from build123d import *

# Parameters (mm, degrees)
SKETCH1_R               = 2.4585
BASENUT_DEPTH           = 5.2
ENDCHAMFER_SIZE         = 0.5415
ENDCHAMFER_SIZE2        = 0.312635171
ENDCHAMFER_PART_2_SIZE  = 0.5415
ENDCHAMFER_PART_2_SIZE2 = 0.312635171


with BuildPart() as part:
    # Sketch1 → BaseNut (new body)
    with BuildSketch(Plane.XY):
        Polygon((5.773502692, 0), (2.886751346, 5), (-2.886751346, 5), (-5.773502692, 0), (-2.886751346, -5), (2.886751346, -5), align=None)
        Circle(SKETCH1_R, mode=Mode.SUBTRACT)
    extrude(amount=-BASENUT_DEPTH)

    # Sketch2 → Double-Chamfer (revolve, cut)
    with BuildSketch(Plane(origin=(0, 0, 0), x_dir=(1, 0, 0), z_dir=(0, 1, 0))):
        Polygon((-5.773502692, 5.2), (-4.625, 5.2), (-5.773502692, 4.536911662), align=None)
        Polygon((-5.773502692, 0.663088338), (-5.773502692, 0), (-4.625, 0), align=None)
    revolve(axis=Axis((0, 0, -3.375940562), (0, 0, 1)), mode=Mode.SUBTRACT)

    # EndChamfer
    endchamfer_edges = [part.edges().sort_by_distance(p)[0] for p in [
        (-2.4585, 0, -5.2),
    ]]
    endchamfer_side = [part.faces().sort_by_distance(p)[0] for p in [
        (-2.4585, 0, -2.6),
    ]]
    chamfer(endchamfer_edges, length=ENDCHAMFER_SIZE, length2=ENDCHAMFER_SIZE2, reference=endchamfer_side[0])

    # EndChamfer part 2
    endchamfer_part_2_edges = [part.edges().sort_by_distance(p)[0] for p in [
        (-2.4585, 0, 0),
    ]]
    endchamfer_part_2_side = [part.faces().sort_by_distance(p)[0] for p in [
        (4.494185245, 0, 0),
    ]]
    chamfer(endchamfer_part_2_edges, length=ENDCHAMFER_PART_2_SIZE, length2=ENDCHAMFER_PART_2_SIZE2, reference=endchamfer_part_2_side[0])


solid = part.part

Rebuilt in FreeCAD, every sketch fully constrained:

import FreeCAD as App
import Part
import Sketcher
from FreeCAD import Vector
Q = App.Units.Quantity


def edges_at(feature, points):
    """Names of the edges that pass closest to the given points."""
    edges = feature.Shape.Edges
    near = lambda p: min(range(len(edges)), key=lambda i: edges[i].distToShape(Part.Vertex(*p))[0])
    return sorted({f"Edge{near(p) + 1}" for p in points})

doc = App.newDocument("Part")
body = doc.addObject("PartDesign::Body", "Body")

# Sketch on XY plane
sketch1 = doc.addObject("Sketcher::SketchObject", "Sketch")
body.addObject(sketch1)
sketch1.AttachmentSupport = (doc.XY_Plane, [""])
sketch1.MapMode = "FlatFace"
sketch1.addGeometry(Part.LineSegment(Vector(5.8, 0, 0), Vector(2.9, 5, 0)), False)
sketch1.addGeometry(Part.LineSegment(Vector(2.9, 5, 0), Vector(-2.9, 5, 0)), False)
sketch1.addGeometry(Part.LineSegment(Vector(-2.9, 5, 0), Vector(-5.8, 0, 0)), False)
sketch1.addGeometry(Part.LineSegment(Vector(-5.8, 0, 0), Vector(-2.9, -5, 0)), False)
sketch1.addGeometry(Part.LineSegment(Vector(-2.9, -5, 0), Vector(2.9, -5, 0)), False)
sketch1.addGeometry(Part.LineSegment(Vector(2.9, -5, 0), Vector(5.8, 0, 0)), False)
sketch1.addGeometry(Part.Circle(Vector(0, 0, 0), Vector(0, 0, 1), 2.5), False)
sketch1.addConstraint(Sketcher.Constraint("Coincident", 0, 2, 1, 1))
sketch1.addConstraint(Sketcher.Constraint("Coincident", 1, 2, 2, 1))
sketch1.addConstraint(Sketcher.Constraint("Coincident", 2, 2, 3, 1))
sketch1.addConstraint(Sketcher.Constraint("Coincident", 3, 2, 4, 1))
sketch1.addConstraint(Sketcher.Constraint("Coincident", 4, 2, 5, 1))
sketch1.addConstraint(Sketcher.Constraint("Coincident", 5, 2, 0, 1))
sketch1.addConstraint(Sketcher.Constraint("Horizontal", 1))
sketch1.addConstraint(Sketcher.Constraint("Horizontal", 4))
sketch1.addConstraint(Sketcher.Constraint("Coincident", 6, 3, -1, 1))
sketch1.addConstraint(Sketcher.Constraint("Symmetric", 0, 2, 3, 2, -1, 1))
sketch1.addConstraint(Sketcher.Constraint("Symmetric", 2, 2, 5, 2, -1, 1))
sketch1.addConstraint(Sketcher.Constraint("PointOnObject", 2, 2, -1))
sketch1.addConstraint(Sketcher.Constraint("Parallel", 2, 5))
sketch1.addConstraint(Sketcher.Constraint("Vertical", 1, 2, 3, 2))
sketch1.addConstraint(Sketcher.Constraint("Angle", 0, Q("120 deg")))
sketch1.addConstraint(Sketcher.Constraint("Diameter", 6, Q("4.917 mm")))
sketch1.addConstraint(Sketcher.Constraint("DistanceY", -1, 1, 0, 2, Q("5 mm")))
sketch1.addConstraint(Sketcher.Constraint("DistanceX", 1, 2, 1, 1, Q("5.773503 mm")))
pad1 = doc.addObject("PartDesign::Pad", "Pad")
body.addObject(pad1)
pad1.Profile = sketch1
pad1.Length = 5.2
pad1.Reversed = True

# Sketch on XZ plane
sketch2 = doc.addObject("Sketcher::SketchObject", "Sketch001")
body.addObject(sketch2)
sketch2.AttachmentSupport = (doc.XZ_Plane, [""])
sketch2.MapMode = "FlatFace"
sketch2.addGeometry(Part.LineSegment(Vector(-4.6, -5.2, 0), Vector(-5.8, -5.2, 0)), False)
sketch2.addGeometry(Part.LineSegment(Vector(-5.8, -5.2, 0), Vector(-5.8, -4.5, 0)), False)
sketch2.addGeometry(Part.LineSegment(Vector(-5.8, -4.5, 0), Vector(-4.6, -5.2, 0)), False)
sketch2.addGeometry(Part.LineSegment(Vector(-5.8, -0.7, 0), Vector(-5.8, 0, 0)), False)
sketch2.addGeometry(Part.LineSegment(Vector(-5.8, 0, 0), Vector(-4.6, 0, 0)), False)
sketch2.addGeometry(Part.LineSegment(Vector(-4.6, 0, 0), Vector(-5.8, -0.7, 0)), False)
sketch2.addConstraint(Sketcher.Constraint("Coincident", 0, 2, 1, 1))
sketch2.addConstraint(Sketcher.Constraint("Coincident", 1, 2, 2, 1))
sketch2.addConstraint(Sketcher.Constraint("Coincident", 2, 2, 0, 1))
sketch2.addConstraint(Sketcher.Constraint("Coincident", 3, 2, 4, 1))
sketch2.addConstraint(Sketcher.Constraint("Coincident", 4, 2, 5, 1))
sketch2.addConstraint(Sketcher.Constraint("Coincident", 5, 2, 3, 1))
sketch2.addConstraint(Sketcher.Constraint("Horizontal", 0))
sketch2.addConstraint(Sketcher.Constraint("Vertical", 1))
sketch2.addConstraint(Sketcher.Constraint("Vertical", 3))
sketch2.addConstraint(Sketcher.Constraint("Horizontal", 4))
sketch2.addConstraint(Sketcher.Constraint("PointOnObject", 3, 2, -1))
sketch2.addConstraint(Sketcher.Constraint("Vertical", 1, 2, 3, 2))
sketch2.addConstraint(Sketcher.Constraint("Vertical", 2, 2, 4, 2))
sketch2.addConstraint(Sketcher.Constraint("Equal", 1, 3))
sketch2.addConstraint(Sketcher.Constraint("Angle", 2, Q("-30 deg")))
sketch2.addConstraint(Sketcher.Constraint("DistanceY", 0, 2, -1, 1, Q("5.2 mm")))
sketch2.addConstraint(Sketcher.Constraint("DistanceX", 2, 2, -1, 1, Q("4.625 mm")))
sketch2.addConstraint(Sketcher.Constraint("DistanceY", 1, 1, 1, 2, Q("0.663088 mm")))
groove = doc.addObject("PartDesign::Groove", "Groove")
body.addObject(groove)
groove.Profile = sketch2
groove.ReferenceAxis = (sketch2, ["V_Axis"])
groove.Angle = 360
doc.recompute()

chamfer = doc.addObject("PartDesign::Chamfer", "Chamfer")
body.addObject(chamfer)
chamfer.Base = (groove, edges_at(groove, [(-2.458, 0, -5.2)]))
chamfer.ChamferType = "Two distances"
chamfer.Size = 0.5415
chamfer.Size2 = 0.312635
chamfer.FlipDirection = True
doc.recompute()

chamfer2 = doc.addObject("PartDesign::Chamfer", "Chamfer001")
body.addObject(chamfer2)
chamfer2.Base = (chamfer, edges_at(chamfer, [(-2.458, 0, 0)]))
chamfer2.ChamferType = "Two distances"
chamfer2.Size = 0.5415
chamfer2.Size2 = 0.312635
chamfer2.FlipDirection = True

doc.recompute()
